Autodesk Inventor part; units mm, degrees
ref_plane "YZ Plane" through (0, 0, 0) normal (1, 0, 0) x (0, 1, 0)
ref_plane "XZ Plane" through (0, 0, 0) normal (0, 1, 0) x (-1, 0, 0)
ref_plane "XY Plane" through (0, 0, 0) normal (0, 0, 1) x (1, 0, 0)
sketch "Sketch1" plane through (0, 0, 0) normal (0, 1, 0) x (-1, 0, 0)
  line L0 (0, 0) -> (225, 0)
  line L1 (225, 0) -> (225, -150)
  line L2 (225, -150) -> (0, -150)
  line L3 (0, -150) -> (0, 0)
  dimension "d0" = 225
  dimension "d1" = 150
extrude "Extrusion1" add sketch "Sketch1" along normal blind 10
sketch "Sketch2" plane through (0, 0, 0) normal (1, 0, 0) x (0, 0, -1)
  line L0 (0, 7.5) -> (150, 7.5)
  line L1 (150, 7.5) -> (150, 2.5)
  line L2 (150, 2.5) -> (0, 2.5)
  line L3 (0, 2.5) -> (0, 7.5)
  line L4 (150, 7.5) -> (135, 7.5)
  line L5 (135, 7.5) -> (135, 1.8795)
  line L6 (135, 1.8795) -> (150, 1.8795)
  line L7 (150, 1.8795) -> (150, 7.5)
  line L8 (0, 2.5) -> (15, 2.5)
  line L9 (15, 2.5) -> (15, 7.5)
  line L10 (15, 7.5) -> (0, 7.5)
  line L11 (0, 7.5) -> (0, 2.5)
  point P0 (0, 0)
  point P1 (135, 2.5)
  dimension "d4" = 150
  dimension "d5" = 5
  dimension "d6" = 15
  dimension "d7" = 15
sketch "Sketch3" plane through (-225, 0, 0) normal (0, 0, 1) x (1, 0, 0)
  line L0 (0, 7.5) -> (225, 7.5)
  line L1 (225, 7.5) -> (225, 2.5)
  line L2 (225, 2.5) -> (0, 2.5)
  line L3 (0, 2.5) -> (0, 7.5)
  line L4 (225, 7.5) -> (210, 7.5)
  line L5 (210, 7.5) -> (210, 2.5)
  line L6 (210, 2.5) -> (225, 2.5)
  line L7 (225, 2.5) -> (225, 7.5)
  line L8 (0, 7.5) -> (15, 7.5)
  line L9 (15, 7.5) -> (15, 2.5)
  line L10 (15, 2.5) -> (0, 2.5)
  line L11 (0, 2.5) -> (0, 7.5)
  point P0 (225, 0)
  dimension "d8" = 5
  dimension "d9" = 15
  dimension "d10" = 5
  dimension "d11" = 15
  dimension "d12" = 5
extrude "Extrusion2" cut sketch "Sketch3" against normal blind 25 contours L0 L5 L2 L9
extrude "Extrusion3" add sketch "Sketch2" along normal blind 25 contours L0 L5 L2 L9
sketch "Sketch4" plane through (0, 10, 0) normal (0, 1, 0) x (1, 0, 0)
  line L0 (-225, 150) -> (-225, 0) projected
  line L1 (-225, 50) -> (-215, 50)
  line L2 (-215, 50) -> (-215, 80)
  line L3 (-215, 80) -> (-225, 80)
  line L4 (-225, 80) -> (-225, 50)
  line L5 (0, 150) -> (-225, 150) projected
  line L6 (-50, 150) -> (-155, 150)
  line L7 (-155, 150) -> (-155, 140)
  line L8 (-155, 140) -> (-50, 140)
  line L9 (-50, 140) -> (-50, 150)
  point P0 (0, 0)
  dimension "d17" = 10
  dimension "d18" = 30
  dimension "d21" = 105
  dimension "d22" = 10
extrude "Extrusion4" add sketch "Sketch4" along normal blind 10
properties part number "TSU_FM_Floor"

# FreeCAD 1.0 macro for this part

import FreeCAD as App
import Part
import Sketcher

V = App.Vector
Q = App.Units.Quantity

doc = App.newDocument("Part")
body = doc.addObject("PartDesign::Body", "Body")

# Sketch on XZ plane
sketch1 = doc.addObject("Sketcher::SketchObject", "Sketch")
body.addObject(sketch1)
sketch1.AttachmentSupport = (doc.XZ_Plane, [""])
sketch1.MapMode = "FlatFace"
sketch1.addGeometry(Part.LineSegment(V(-225, 0, 0), V(0, 0, 0)), False)
sketch1.addGeometry(Part.LineSegment(V(0, 0, 0), V(0, -150, 0)), False)
sketch1.addGeometry(Part.LineSegment(V(0, -150, 0), V(-225, -150, 0)), False)
sketch1.addGeometry(Part.LineSegment(V(-225, -150, 0), V(-225, 0, 0)), False)
sketch1.addConstraint(Sketcher.Constraint("Coincident", 0, 2, 1, 1))
sketch1.addConstraint(Sketcher.Constraint("Coincident", 1, 2, 2, 1))
sketch1.addConstraint(Sketcher.Constraint("Coincident", 2, 2, 3, 1))
sketch1.addConstraint(Sketcher.Constraint("Coincident", 3, 2, 0, 1))
sketch1.addConstraint(Sketcher.Constraint("Horizontal", 0))
sketch1.addConstraint(Sketcher.Constraint("Vertical", 1))
sketch1.addConstraint(Sketcher.Constraint("Horizontal", 2))
sketch1.addConstraint(Sketcher.Constraint("Vertical", 3))
sketch1.addConstraint(Sketcher.Constraint("Coincident", 0, 2, -1, 1))
sketch1.addConstraint(Sketcher.Constraint("DistanceX", 0, 1, 0, 2, Q("225 mm")))
sketch1.addConstraint(Sketcher.Constraint("DistanceY", 1, 2, 1, 1, Q("150 mm")))
pad1 = doc.addObject("PartDesign::Pad", "Pad")
body.addObject(pad1)
pad1.Profile = sketch1
pad1.Length = 10
pad1.Reversed = True

# Sketch on XY plane
sketch2 = doc.addObject("Sketcher::SketchObject", "Sketch001")
body.addObject(sketch2)
sketch2.AttachmentSupport = (doc.XY_Plane, [""])
sketch2.MapMode = "FlatFace"
sketch2.addGeometry(Part.LineSegment(V(-15, 8, 0), V(-210, 8, 0)), False)
sketch2.addGeometry(Part.LineSegment(V(-210, 8, 0), V(-210, 2, 0)), False)
sketch2.addGeometry(Part.LineSegment(V(-210, 2, 0), V(-15, 2, 0)), False)
sketch2.addGeometry(Part.LineSegment(V(-15, 2, 0), V(-15, 8, 0)), False)
sketch2.addConstraint(Sketcher.Constraint("Coincident", 0, 2, 1, 1))
sketch2.addConstraint(Sketcher.Constraint("Coincident", 1, 2, 2, 1))
sketch2.addConstraint(Sketcher.Constraint("Coincident", 2, 2, 3, 1))
sketch2.addConstraint(Sketcher.Constraint("Coincident", 3, 2, 0, 1))
sketch2.addConstraint(Sketcher.Constraint("Horizontal", 0))
sketch2.addConstraint(Sketcher.Constraint("Vertical", 1))
sketch2.addConstraint(Sketcher.Constraint("Horizontal", 2))
sketch2.addConstraint(Sketcher.Constraint("Vertical", 3))
sketch2.addConstraint(Sketcher.Constraint("DistanceY", 1, 2, 1, 1, Q("5 mm")))
sketch2.addConstraint(Sketcher.Constraint("DistanceX", 2, 2, -1, 1, Q("15 mm")))
sketch2.addConstraint(Sketcher.Constraint("DistanceX", 0, 2, 0, 1, Q("195 mm")))
sketch2.addConstraint(Sketcher.Constraint("DistanceY", -1, 1, 0, 2, Q("7.5 mm")))
pocket1 = doc.addObject("PartDesign::Pocket", "Pocket")
body.addObject(pocket1)
pocket1.Profile = sketch2
pocket1.Length = 25

# Sketch on YZ plane
sketch3 = doc.addObject("Sketcher::SketchObject", "Sketch002")
body.addObject(sketch3)
sketch3.AttachmentSupport = (doc.YZ_Plane, [""])
sketch3.MapMode = "FlatFace"
sketch3.addGeometry(Part.LineSegment(V(8, -135, 0), V(8, -15, 0)), False)
sketch3.addGeometry(Part.LineSegment(V(8, -15, 0), V(2, -15, 0)), False)
sketch3.addGeometry(Part.LineSegment(V(2, -15, 0), V(2, -135, 0)), False)
sketch3.addGeometry(Part.LineSegment(V(2, -135, 0), V(8, -135, 0)), False)
sketch3.addConstraint(Sketcher.Constraint("Coincident", 0, 2, 1, 1))
sketch3.addConstraint(Sketcher.Constraint("Coincident", 1, 2, 2, 1))
sketch3.addConstraint(Sketcher.Constraint("Coincident", 2, 2, 3, 1))
sketch3.addConstraint(Sketcher.Constraint("Coincident", 3, 2, 0, 1))
sketch3.addConstraint(Sketcher.Constraint("Vertical", 0))
sketch3.addConstraint(Sketcher.Constraint("Horizontal", 1))
sketch3.addConstraint(Sketcher.Constraint("Vertical", 2))
sketch3.addConstraint(Sketcher.Constraint("Horizontal", 3))
sketch3.addConstraint(Sketcher.Constraint("DistanceX", 1, 2, 1, 1, Q("5 mm")))
sketch3.addConstraint(Sketcher.Constraint("DistanceY", 0, 2, -1, 1, Q("15 mm")))
sketch3.addConstraint(Sketcher.Constraint("DistanceY", 0, 1, 0, 2, Q("120 mm")))
sketch3.addConstraint(Sketcher.Constraint("DistanceX", -1, 1, 0, 2, Q("7.5 mm")))
pad2 = doc.addObject("PartDesign::Pad", "Pad001")
body.addObject(pad2)
pad2.Profile = sketch3
pad2.Length = 25

# Sketch on XZ plane
sketch4 = doc.addObject("Sketcher::SketchObject", "Sketch003")
body.addObject(sketch4)
sketch4.AttachmentSupport = (doc.XZ_Plane, [""])
sketch4.MapMode = "FlatFace"
sketch4.AttachmentOffset = App.Placement(V(0, 0, -10), App.Rotation())
sketch4.addGeometry(Part.LineSegment(V(-215, -80, 0), V(-225, -80, 0)), False)
sketch4.addGeometry(Part.LineSegment(V(-225, -80, 0), V(-225, -50, 0)), False)
sketch4.addGeometry(Part.LineSegment(V(-225, -50, 0), V(-215, -50, 0)), False)
sketch4.addGeometry(Part.LineSegment(V(-215, -50, 0), V(-215, -80, 0)), False)
sketch4.addGeometry(Part.LineSegment(V(-50, -150, 0), V(-155, -150, 0)), False)
sketch4.addGeometry(Part.LineSegment(V(-155, -150, 0), V(-155, -140, 0)), False)
sketch4.addGeometry(Part.LineSegment(V(-155, -140, 0), V(-50, -140, 0)), False)
sketch4.addGeometry(Part.LineSegment(V(-50, -140, 0), V(-50, -150, 0)), False)
sketch4.addConstraint(Sketcher.Constraint("Coincident", 0, 2, 1, 1))
sketch4.addConstraint(Sketcher.Constraint("Coincident", 1, 2, 2, 1))
sketch4.addConstraint(Sketcher.Constraint("Coincident", 2, 2, 3, 1))
sketch4.addConstraint(Sketcher.Constraint("Coincident", 3, 2, 0, 1))
sketch4.addConstraint(Sketcher.Constraint("Coincident", 4, 2, 5, 1))
sketch4.addConstraint(Sketcher.Constraint("Coincident", 5, 2, 6, 1))
sketch4.addConstraint(Sketcher.Constraint("Coincident", 6, 2, 7, 1))
sketch4.addConstraint(Sketcher.Constraint("Coincident", 7, 2, 4, 1))
sketch4.addConstraint(Sketcher.Constraint("Horizontal", 0))
sketch4.addConstraint(Sketcher.Constraint("Vertical", 1))
sketch4.addConstraint(Sketcher.Constraint("Horizontal", 2))
sketch4.addConstraint(Sketcher.Constraint("Vertical", 3))
sketch4.addConstraint(Sketcher.Constraint("Horizontal", 4))
sketch4.addConstraint(Sketcher.Constraint("Vertical", 5))
sketch4.addConstraint(Sketcher.Constraint("Horizontal", 6))
sketch4.addConstraint(Sketcher.Constraint("Vertical", 7))
sketch4.addConstraint(Sketcher.Constraint("Equal", 2, 5))
sketch4.addConstraint(Sketcher.Constraint("DistanceX", 0, 2, 0, 1, Q("10 mm")))
sketch4.addConstraint(Sketcher.Constraint("DistanceX", 4, 2, 4, 1, Q("105 mm")))
sketch4.addConstraint(Sketcher.Constraint("DistanceY", 1, 1, 1, 2, Q("30 mm")))
sketch4.addConstraint(Sketcher.Constraint("DistanceX", 0, 2, -1, 1, Q("225 mm")))
sketch4.addConstraint(Sketcher.Constraint("DistanceY", 0, 2, -1, 1, Q("80 mm")))
sketch4.addConstraint(Sketcher.Constraint("DistanceX", 4, 2, -1, 1, Q("155 mm")))
sketch4.addConstraint(Sketcher.Constraint("DistanceY", 4, 2, -1, 1, Q("150 mm")))
pad3 = doc.addObject("PartDesign::Pad", "Pad002")
body.addObject(pad3)
pad3.Profile = sketch4
pad3.Length = 10
pad3.Reversed = True

doc.recompute()
